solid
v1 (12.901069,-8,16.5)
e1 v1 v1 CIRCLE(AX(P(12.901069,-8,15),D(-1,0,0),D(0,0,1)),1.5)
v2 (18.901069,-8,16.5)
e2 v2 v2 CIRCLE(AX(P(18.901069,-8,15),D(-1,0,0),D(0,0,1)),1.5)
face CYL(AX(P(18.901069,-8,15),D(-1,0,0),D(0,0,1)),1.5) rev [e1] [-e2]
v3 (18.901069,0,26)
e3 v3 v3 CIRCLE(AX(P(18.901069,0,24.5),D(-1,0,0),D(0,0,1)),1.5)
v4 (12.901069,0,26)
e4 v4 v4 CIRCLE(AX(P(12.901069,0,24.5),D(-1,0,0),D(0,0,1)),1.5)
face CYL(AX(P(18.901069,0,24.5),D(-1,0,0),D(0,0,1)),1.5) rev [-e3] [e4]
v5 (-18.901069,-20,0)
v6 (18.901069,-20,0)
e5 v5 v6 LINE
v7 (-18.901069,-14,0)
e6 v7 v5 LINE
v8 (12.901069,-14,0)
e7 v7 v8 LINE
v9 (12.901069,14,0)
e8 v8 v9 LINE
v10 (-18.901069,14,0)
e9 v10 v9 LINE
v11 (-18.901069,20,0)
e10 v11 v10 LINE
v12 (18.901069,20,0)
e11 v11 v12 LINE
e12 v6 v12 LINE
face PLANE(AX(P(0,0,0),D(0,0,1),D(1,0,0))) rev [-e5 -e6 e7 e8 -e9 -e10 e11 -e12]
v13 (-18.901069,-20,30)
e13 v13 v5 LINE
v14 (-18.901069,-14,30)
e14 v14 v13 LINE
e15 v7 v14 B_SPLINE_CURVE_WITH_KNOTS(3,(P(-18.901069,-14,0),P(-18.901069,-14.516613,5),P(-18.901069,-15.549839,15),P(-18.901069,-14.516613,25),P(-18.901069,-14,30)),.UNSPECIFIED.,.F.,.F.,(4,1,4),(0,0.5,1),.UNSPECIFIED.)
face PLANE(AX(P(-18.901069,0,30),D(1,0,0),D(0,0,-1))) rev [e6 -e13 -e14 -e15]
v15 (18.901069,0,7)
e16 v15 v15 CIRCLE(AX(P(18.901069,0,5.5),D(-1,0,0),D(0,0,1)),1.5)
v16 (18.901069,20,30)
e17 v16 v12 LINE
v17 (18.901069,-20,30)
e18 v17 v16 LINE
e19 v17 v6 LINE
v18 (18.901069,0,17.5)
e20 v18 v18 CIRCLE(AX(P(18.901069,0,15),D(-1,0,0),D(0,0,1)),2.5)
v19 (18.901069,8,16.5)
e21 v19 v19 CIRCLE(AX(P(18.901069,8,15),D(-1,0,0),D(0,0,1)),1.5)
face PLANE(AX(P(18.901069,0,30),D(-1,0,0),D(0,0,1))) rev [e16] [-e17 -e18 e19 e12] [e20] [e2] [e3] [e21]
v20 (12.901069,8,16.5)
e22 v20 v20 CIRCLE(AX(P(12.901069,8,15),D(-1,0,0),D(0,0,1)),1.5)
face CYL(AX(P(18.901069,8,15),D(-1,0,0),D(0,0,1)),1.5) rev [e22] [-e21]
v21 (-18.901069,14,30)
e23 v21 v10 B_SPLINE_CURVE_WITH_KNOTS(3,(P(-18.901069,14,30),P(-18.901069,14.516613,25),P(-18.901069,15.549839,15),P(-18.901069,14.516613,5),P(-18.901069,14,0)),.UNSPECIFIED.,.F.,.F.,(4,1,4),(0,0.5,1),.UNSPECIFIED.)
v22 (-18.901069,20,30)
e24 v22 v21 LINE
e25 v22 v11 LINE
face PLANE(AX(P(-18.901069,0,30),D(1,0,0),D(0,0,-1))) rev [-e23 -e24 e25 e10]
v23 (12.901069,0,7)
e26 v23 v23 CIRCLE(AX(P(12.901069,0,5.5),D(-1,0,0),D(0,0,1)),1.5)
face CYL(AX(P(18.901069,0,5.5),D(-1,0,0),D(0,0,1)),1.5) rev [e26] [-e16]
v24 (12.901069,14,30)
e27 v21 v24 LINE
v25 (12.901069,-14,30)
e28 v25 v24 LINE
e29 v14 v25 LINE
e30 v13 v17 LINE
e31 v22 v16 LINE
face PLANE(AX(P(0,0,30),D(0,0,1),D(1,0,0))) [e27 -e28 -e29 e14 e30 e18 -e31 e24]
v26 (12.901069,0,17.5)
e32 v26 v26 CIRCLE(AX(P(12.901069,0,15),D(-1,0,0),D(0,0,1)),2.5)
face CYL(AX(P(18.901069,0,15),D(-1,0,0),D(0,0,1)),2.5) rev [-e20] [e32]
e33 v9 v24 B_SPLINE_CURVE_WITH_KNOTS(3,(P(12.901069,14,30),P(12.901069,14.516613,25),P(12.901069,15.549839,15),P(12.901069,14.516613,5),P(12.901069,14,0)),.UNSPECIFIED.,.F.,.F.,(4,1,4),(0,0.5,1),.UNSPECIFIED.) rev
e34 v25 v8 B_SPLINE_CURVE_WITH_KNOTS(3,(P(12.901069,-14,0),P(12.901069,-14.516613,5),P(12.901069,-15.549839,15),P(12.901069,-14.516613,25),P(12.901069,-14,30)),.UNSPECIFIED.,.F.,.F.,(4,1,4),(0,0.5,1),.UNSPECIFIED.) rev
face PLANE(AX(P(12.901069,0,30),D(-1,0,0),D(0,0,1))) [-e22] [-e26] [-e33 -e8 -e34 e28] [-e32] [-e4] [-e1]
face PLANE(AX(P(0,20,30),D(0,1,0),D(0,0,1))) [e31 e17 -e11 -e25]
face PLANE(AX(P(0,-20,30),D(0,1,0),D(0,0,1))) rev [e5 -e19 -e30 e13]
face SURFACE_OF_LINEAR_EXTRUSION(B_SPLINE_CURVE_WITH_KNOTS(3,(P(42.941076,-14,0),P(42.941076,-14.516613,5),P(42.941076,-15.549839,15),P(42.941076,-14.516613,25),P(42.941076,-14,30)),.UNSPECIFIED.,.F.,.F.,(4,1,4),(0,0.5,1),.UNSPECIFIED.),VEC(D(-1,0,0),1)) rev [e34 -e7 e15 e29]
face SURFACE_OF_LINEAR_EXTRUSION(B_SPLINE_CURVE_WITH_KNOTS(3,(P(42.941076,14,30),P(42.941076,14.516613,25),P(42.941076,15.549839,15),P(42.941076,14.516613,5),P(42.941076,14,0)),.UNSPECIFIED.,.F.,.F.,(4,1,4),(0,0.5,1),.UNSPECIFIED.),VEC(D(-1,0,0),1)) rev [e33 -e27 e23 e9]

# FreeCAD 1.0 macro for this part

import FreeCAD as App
import Part
import Sketcher

V = App.Vector

doc = App.newDocument("Part")
body = doc.addObject("PartDesign::Body", "Body")

# Sketch on XY plane
sketch1 = body.newObject("Sketcher::SketchObject", "Sketch")
sketch1.AttachmentSupport = (doc.getObject("XY_Plane"), [""])
sketch1.MapMode = "FlatFace"
sketch1.addGeometry([
    Part.LineSegment(V(-19, 20, 0), V(-19, 14, 0)),  # 0
    Part.LineSegment(V(-19, 14, 0), V(13, 14, 0)),  # 1
    Part.LineSegment(V(13, 14, 0), V(13, -14, 0)),  # 2
    Part.LineSegment(V(13, -14, 0), V(-19, -14, 0)),  # 3
    Part.LineSegment(V(-19, -14, 0), V(-19, -20, 0)),  # 4
    Part.LineSegment(V(-19, -20, 0), V(19, -20, 0)),  # 5
    Part.LineSegment(V(19, -20, 0), V(19, 20, 0)),  # 6
    Part.LineSegment(V(19, 20, 0), V(-19, 20, 0)),  # 7
], False)
sketch1.addConstraint([
    Sketcher.Constraint("Coincident", 0, 2, 1, 1),
    Sketcher.Constraint("Coincident", 1, 2, 2, 1),
    Sketcher.Constraint("Coincident", 2, 2, 3, 1),
    Sketcher.Constraint("Coincident", 3, 2, 4, 1),
    Sketcher.Constraint("Coincident", 4, 2, 5, 1),
    Sketcher.Constraint("Coincident", 5, 2, 6, 1),
    Sketcher.Constraint("Coincident", 6, 2, 7, 1),
    Sketcher.Constraint("Coincident", 7, 2, 0, 1),
    Sketcher.Constraint("Vertical", 0),
    Sketcher.Constraint("Horizontal", 1),
    Sketcher.Constraint("Vertical", 2),
    Sketcher.Constraint("Horizontal", 3),
    Sketcher.Constraint("Vertical", 4),
    Sketcher.Constraint("Horizontal", 5),
    Sketcher.Constraint("Vertical", 6),
    Sketcher.Constraint("Horizontal", 7),
    Sketcher.Constraint("Symmetric", 4, 2, 6, 2, -1, 1),
    Sketcher.Constraint("Symmetric", 0, 2, 3, 2, -1),
    Sketcher.Constraint("DistanceY", 0, 2, 0, 1, 6.0),
    Sketcher.Constraint("DistanceY", 2, 2, 2, 1, 28.0),
    Sketcher.Constraint("DistanceX", 2, 2, 5, 2, 6.0),
    Sketcher.Constraint("DistanceX", 1, 1, 1, 2, 31.802138),
])
pad1 = body.newObject("PartDesign::Pad", "Pad")
pad1.Profile = sketch1
pad1.Length = 30

# Sketch on YZ plane
sketch2 = body.newObject("Sketcher::SketchObject", "Sketch001")
sketch2.AttachmentSupport = (doc.getObject("YZ_Plane"), [""])
sketch2.MapMode = "FlatFace"
sketch2.AttachmentOffset = App.Placement(V(0, 0, 12.901069), App.Rotation())
sketch2.addGeometry([
    Part.Circle(V(8, 15, 0), V(0, 0, 1), 1.5),  # 0
    Part.Circle(V(0, 15, 0), V(0, 0, 1), 2.5),  # 1
    Part.Circle(V(-8, 15, 0), V(0, 0, 1), 1.5),  # 2
    Part.Circle(V(0, 5.5, 0), V(0, 0, 1), 1.5),  # 3
    Part.Circle(V(0, 24.5, 0), V(0, 0, 1), 1.5),  # 4
], False)
sketch2.addConstraint([
    Sketcher.Constraint("Equal", 0, 2),
    Sketcher.Constraint("Equal", 2, 3),
    Sketcher.Constraint("Equal", 3, 4),
    Sketcher.Constraint("Symmetric", 0, 3, 2, 3, -2),
    Sketcher.Constraint("PointOnObject", 1, 3, -2),
    Sketcher.Constraint("PointOnObject", 3, 3, -2),
    Sketcher.Constraint("PointOnObject", 4, 3, -2),
    Sketcher.Constraint("Horizontal", 0, 3, 1, 3),
    Sketcher.Constraint("Diameter", 0, 3.0),
    Sketcher.Constraint("Diameter", 1, 5.0),
    Sketcher.Constraint("DistanceX", -1, 1, 0, 3, 8.0),
    Sketcher.Constraint("DistanceY", -1, 1, 0, 3, 15.0),
    Sketcher.Constraint("DistanceY", 3, 3, 4, 3, 19.0),
    Sketcher.Constraint("DistanceY", -1, 1, 3, 3, 5.5),
])
pocket1 = body.newObject("PartDesign::Pocket", "Pocket")
pocket1.Profile = sketch2
pocket1.Type = "ThroughAll"
pocket1.Reversed = True

# Sketch on YZ plane
sketch3 = body.newObject("Sketcher::SketchObject", "Sketch002")
sketch3.AttachmentSupport = (doc.getObject("YZ_Plane"), [""])
sketch3.MapMode = "FlatFace"
sketch3.AttachmentOffset = App.Placement(V(0, 0, -18.901069), App.Rotation())
sketch3.addGeometry([
    Part.LineSegment(V(-14, 30, 0), V(-14, 0, 0)),
    Part.BSplineCurve([V(-14, 0, 0), V(-14.516613, 5, 0), V(-15.549839, 15, 0), V(-14.516613, 25, 0), V(-14, 30, 0)], [4, 1, 4], [0, 0.5, 1], False, 3, [1, 1, 1, 1, 1], False),
    Part.LineSegment(V(14, 0, 0), V(14, 30, 0)),
    Part.BSplineCurve([V(14, 0, 0), V(14.516613, 5, 0), V(15.549839, 15, 0), V(14.516613, 25, 0), V(14, 30, 0)], [4, 1, 4], [0, 0.5, 1], False, 3, [1, 1, 1, 1, 1], False),
], False)
sketch3.addConstraint([
    Sketcher.Constraint("Block", 1),
    Sketcher.Constraint("Block", 3),
    Sketcher.Constraint("Coincident", 0, 1, 1, 2),
    Sketcher.Constraint("Coincident", 1, 1, 0, 2),
    Sketcher.Constraint("Coincident", 2, 1, 3, 1),
    Sketcher.Constraint("Coincident", 3, 2, 2, 2),
])
pocket2 = body.newObject("PartDesign::Pocket", "Pocket001")
pocket2.Profile = sketch3
pocket2.Length = 31.802138
pocket2.Reversed = True

doc.recompute()
